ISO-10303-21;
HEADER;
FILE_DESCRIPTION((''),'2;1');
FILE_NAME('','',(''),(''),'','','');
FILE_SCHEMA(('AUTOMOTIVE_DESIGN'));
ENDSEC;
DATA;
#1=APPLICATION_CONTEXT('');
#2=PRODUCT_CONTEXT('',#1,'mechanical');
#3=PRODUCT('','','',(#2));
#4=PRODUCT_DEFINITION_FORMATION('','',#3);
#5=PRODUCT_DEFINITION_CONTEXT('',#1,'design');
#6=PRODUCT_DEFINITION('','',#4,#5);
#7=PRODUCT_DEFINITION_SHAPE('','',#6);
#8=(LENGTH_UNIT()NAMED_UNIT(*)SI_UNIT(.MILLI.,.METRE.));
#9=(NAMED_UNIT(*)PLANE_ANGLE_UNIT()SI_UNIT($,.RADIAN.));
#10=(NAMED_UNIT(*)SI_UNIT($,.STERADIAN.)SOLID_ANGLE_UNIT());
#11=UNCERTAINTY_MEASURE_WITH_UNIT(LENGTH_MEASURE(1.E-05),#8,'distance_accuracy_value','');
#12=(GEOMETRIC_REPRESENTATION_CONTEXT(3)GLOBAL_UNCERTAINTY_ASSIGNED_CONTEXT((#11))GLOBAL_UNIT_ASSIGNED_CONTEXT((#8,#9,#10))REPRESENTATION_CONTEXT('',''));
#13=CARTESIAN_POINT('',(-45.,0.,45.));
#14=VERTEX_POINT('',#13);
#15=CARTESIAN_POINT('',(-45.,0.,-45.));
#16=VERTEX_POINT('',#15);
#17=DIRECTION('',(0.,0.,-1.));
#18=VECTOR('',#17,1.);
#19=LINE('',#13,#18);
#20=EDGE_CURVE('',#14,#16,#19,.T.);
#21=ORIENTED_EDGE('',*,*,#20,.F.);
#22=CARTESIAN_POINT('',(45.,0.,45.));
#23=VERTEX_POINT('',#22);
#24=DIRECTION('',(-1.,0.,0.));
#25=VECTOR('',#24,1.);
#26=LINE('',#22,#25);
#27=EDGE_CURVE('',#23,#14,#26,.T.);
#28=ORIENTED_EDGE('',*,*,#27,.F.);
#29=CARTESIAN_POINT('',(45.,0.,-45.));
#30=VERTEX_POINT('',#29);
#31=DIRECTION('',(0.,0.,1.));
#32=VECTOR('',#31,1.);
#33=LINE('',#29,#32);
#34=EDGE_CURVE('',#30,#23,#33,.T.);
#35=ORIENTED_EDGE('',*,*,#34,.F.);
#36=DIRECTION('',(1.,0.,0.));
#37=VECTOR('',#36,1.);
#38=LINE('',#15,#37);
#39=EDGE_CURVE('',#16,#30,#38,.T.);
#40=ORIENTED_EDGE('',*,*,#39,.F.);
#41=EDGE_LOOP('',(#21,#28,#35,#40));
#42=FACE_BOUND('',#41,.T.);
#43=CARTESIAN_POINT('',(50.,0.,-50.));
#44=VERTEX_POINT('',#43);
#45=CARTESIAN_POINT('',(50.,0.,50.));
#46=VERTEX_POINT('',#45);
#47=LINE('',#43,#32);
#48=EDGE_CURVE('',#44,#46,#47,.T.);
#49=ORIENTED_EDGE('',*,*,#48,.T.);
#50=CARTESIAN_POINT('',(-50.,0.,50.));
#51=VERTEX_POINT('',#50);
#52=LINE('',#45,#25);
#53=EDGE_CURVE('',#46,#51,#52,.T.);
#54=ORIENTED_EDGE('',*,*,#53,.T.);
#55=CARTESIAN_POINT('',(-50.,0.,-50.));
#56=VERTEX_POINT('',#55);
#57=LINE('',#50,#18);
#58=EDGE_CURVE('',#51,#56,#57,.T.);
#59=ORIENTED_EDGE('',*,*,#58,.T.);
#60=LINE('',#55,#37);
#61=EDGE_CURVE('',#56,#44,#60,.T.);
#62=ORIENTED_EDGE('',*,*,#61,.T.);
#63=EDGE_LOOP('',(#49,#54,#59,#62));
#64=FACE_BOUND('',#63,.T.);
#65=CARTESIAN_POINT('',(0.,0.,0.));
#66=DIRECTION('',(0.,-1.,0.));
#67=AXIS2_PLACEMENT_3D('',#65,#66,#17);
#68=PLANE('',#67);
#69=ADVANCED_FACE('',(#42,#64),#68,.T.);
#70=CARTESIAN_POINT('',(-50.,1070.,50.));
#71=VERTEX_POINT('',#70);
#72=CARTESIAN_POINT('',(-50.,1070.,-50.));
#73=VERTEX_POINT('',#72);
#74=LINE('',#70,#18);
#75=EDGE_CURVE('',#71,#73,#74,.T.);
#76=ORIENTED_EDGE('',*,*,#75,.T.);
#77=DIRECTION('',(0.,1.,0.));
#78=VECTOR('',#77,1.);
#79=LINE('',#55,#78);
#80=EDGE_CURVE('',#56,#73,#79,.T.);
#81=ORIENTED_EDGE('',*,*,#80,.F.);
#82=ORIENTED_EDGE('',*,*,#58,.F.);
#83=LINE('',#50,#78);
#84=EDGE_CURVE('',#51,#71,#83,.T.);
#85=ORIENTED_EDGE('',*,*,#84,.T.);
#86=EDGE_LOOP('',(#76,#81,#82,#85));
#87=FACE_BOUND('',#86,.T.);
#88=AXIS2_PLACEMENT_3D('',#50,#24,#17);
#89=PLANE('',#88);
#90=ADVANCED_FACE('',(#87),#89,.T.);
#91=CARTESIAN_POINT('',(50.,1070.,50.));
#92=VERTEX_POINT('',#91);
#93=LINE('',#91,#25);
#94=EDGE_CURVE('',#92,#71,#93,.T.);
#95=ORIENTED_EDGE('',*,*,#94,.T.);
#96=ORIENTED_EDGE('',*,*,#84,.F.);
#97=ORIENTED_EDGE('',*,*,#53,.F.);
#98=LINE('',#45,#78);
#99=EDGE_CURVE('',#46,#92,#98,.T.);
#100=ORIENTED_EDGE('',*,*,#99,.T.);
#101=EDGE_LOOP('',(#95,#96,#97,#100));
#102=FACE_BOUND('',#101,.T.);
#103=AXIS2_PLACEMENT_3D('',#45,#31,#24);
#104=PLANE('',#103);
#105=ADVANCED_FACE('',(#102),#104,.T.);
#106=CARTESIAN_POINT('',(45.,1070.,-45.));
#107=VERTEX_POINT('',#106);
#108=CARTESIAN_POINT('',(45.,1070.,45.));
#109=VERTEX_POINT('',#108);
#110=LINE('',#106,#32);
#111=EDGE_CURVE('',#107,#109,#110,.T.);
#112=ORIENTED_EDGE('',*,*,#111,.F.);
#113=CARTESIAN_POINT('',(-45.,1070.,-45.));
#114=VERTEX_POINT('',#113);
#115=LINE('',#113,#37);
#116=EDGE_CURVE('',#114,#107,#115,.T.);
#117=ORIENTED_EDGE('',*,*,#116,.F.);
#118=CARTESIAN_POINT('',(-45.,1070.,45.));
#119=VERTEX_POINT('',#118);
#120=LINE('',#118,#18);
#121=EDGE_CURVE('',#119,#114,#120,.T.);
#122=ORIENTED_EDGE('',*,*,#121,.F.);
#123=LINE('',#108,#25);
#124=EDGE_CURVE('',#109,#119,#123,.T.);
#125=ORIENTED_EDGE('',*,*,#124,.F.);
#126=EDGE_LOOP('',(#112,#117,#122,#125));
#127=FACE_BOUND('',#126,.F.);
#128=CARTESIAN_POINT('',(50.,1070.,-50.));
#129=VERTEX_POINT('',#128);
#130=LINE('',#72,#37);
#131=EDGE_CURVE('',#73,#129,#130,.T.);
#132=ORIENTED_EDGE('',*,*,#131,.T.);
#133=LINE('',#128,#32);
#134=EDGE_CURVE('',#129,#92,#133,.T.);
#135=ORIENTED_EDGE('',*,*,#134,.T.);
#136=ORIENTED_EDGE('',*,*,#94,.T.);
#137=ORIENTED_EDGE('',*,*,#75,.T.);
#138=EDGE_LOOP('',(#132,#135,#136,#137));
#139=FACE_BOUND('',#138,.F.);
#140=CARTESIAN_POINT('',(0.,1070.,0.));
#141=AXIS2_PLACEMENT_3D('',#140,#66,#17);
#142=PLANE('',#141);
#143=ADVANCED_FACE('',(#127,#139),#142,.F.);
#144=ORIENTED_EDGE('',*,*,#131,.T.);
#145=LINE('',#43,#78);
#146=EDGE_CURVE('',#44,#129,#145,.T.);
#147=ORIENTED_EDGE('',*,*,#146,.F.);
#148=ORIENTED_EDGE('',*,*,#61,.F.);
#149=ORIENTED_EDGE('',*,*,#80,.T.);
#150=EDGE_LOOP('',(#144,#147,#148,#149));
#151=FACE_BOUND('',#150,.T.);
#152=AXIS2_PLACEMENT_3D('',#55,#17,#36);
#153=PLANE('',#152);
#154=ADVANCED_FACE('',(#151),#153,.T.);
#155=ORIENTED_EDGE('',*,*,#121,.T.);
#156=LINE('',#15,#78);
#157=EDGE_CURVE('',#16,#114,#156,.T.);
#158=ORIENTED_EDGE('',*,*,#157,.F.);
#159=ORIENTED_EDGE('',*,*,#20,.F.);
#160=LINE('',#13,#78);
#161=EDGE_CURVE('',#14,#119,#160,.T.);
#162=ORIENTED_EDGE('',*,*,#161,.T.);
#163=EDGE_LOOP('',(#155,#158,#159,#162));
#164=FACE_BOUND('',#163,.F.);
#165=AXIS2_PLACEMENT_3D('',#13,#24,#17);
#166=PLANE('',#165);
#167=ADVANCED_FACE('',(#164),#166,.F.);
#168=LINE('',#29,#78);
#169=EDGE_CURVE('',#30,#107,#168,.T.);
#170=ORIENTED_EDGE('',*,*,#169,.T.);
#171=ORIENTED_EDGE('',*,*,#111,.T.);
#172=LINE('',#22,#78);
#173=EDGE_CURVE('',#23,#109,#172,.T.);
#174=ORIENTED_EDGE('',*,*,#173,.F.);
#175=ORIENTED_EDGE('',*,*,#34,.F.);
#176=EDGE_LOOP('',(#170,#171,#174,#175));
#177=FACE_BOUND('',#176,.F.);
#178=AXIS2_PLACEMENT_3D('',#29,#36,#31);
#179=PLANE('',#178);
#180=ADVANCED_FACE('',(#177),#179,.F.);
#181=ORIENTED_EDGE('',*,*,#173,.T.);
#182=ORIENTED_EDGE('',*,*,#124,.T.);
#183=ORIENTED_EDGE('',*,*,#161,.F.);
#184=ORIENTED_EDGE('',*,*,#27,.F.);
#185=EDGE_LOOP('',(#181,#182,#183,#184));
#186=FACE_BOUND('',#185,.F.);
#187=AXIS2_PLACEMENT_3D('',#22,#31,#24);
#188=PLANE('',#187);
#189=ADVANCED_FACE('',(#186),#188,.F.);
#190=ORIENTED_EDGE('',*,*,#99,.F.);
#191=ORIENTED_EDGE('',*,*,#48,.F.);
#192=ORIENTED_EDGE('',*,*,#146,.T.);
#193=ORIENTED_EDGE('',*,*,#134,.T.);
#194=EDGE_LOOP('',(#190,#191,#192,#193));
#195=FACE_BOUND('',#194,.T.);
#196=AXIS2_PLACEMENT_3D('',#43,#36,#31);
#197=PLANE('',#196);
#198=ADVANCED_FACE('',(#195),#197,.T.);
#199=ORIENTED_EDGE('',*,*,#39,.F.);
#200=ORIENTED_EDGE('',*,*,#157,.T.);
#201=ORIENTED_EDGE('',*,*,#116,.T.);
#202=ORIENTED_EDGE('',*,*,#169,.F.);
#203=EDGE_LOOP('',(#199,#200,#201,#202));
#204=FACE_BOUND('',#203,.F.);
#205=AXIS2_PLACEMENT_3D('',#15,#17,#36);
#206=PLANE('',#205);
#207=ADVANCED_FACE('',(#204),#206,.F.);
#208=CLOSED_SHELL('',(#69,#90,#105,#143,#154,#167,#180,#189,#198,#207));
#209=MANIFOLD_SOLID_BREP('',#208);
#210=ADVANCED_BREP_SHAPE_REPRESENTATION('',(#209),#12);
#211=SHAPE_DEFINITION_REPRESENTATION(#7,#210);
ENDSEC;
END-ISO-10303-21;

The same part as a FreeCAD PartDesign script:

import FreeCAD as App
import Part
import Sketcher

V = App.Vector
Q = App.Units.Quantity


def add_polygon(sketch, points):
    """Adds a closed chain of lines whose ends are joined by coincident constraints."""
    first, n = sketch.GeometryCount, len(points)
    for a, b in zip(points, points[1:] + points[:1]):
        sketch.addGeometry(Part.LineSegment(App.Vector(*a, 0), App.Vector(*b, 0)), False)
    for i in range(n):
        sketch.addConstraint(Sketcher.Constraint("Coincident", first + i, 2, first + (i + 1) % n, 1))

doc = App.newDocument("Part")
body = doc.addObject("PartDesign::Body", "Body")

# Sketch on XZ plane
sketch1 = body.newObject("Sketcher::SketchObject", "Sketch")
sketch1.AttachmentSupport = (doc.getObject("XZ_Plane"), [""])
sketch1.MapMode = "FlatFace"
add_polygon(sketch1, [(-50, 50), (-50, -50), (50, -50), (50, 50)])  # lines 0-3
add_polygon(sketch1, [(-45, 45), (45, 45), (45, -45), (-45, -45)])  # lines 4-7
sketch1.addConstraint(Sketcher.Constraint("Vertical", 0))
sketch1.addConstraint(Sketcher.Constraint("Horizontal", 1))
sketch1.addConstraint(Sketcher.Constraint("Vertical", 2))
sketch1.addConstraint(Sketcher.Constraint("Horizontal", 3))
sketch1.addConstraint(Sketcher.Constraint("Horizontal", 4))
sketch1.addConstraint(Sketcher.Constraint("Vertical", 5))
sketch1.addConstraint(Sketcher.Constraint("Horizontal", 6))
sketch1.addConstraint(Sketcher.Constraint("Vertical", 7))
sketch1.addConstraint(Sketcher.Constraint("Symmetric", 0, 2, 2, 2, -1, 1))
sketch1.addConstraint(Sketcher.Constraint("Symmetric", 4, 2, 6, 2, -1, 1))
sketch1.addConstraint(Sketcher.Constraint("Equal", 3, 0))
sketch1.addConstraint(Sketcher.Constraint("Equal", 6, 5))
sketch1.addConstraint(Sketcher.Constraint("DistanceX", 1, 1, 1, 2, Q("100 mm")))
sketch1.addConstraint(Sketcher.Constraint("DistanceX", 4, 1, 4, 2, Q("90 mm")))
pad1 = body.newObject("PartDesign::Pad", "Pad")
pad1.Profile = sketch1
pad1.Length = 1070
pad1.Reversed = True

doc.recompute()
